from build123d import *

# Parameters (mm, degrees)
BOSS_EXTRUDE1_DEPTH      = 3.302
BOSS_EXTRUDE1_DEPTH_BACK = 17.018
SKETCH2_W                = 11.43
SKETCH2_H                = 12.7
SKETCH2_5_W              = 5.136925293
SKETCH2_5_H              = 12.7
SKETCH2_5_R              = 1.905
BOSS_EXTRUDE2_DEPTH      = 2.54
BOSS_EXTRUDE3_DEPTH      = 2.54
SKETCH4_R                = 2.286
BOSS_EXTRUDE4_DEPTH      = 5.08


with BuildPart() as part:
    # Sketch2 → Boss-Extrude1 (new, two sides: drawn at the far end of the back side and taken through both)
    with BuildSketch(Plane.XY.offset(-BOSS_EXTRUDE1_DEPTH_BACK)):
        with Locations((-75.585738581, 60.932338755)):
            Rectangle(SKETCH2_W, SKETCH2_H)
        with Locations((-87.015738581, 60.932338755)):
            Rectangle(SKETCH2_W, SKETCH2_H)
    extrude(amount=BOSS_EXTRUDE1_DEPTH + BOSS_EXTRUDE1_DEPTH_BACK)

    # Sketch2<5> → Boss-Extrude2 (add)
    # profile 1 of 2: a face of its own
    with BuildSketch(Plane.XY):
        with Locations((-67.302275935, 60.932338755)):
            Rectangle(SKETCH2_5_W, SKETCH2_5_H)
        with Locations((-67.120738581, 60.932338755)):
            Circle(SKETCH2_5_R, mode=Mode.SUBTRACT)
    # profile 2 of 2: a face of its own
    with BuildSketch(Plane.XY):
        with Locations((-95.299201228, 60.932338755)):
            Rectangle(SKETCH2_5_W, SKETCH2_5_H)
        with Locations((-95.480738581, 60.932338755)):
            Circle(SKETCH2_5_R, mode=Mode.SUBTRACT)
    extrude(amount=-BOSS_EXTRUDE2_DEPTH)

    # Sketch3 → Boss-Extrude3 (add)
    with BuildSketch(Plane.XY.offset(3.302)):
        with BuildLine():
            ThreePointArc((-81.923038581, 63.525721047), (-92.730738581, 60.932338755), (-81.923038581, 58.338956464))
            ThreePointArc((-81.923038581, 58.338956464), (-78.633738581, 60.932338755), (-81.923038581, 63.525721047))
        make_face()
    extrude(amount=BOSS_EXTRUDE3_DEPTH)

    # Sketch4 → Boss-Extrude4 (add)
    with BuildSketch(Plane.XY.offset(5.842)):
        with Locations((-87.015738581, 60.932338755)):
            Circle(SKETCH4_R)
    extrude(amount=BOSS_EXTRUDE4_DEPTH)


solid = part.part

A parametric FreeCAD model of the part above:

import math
import FreeCAD as App
import Part
import Sketcher

V = App.Vector
Q = App.Units.Quantity

doc = App.newDocument("Part")
body = doc.addObject("PartDesign::Body", "Body")

# Sketch on XY plane
sketch1 = body.newObject("Sketcher::SketchObject", "Sketch")
sketch1.AttachmentSupport = (doc.getObject("XY_Plane"), [""])
sketch1.MapMode = "FlatFace"
sketch1.addGeometry(Part.LineSegment(V(-69.870739, 54.582339, 0), V(-69.870739, 67.282339, 0)), False)
sketch1.addGeometry(Part.LineSegment(V(-69.870739, 67.282339, 0), V(-92.730739, 67.282339, 0)), False)
sketch1.addGeometry(Part.LineSegment(V(-92.730739, 67.282339, 0), V(-92.730739, 54.582339, 0)), False)
sketch1.addGeometry(Part.LineSegment(V(-92.730739, 54.582339, 0), V(-69.870739, 54.582339, 0)), False)
sketch1.addConstraint(Sketcher.Constraint("Coincident", 0, 2, 1, 1))
sketch1.addConstraint(Sketcher.Constraint("Coincident", 1, 2, 2, 1))
sketch1.addConstraint(Sketcher.Constraint("Coincident", 2, 2, 3, 1))
sketch1.addConstraint(Sketcher.Constraint("Coincident", 3, 2, 0, 1))
sketch1.addConstraint(Sketcher.Constraint("Vertical", 0))
sketch1.addConstraint(Sketcher.Constraint("Horizontal", 1))
sketch1.addConstraint(Sketcher.Constraint("Vertical", 2))
sketch1.addConstraint(Sketcher.Constraint("Horizontal", 3))
sketch1.addConstraint(Sketcher.Constraint("DistanceX", 1, 2, 1, 1, Q("0.9 in")))
sketch1.addConstraint(Sketcher.Constraint("DistanceY", 0, 1, 0, 2, Q("0.5 in")))
sketch1.addConstraint(Sketcher.Constraint("DistanceX", 0, 2, -1, 1, Q("69.870739 mm")))
sketch1.addConstraint(Sketcher.Constraint("DistanceY", -1, 1, 0, 2, Q("67.282339 mm")))
pad1 = body.newObject("PartDesign::Pad", "Pad")
pad1.Profile = sketch1
pad1.Type = "TwoLengths"
pad1.Length = Q("0.13 in")
pad1.Length2 = Q("0.67 in")

# Sketch on XY plane
sketch2 = body.newObject("Sketcher::SketchObject", "Sketch001")
sketch2.AttachmentSupport = (doc.getObject("XY_Plane"), [""])
sketch2.MapMode = "FlatFace"
sketch2.addGeometry(Part.LineSegment(V(-69.870739, 67.282339, 0), V(-69.870739, 54.582339, 0)), False)
sketch2.addGeometry(Part.LineSegment(V(-69.870739, 54.582339, 0), V(-64.733813, 54.582339, 0)), False)
sketch2.addGeometry(Part.LineSegment(V(-64.733813, 54.582339, 0), V(-64.733813, 67.282339, 0)), False)
sketch2.addGeometry(Part.LineSegment(V(-64.733813, 67.282339, 0), V(-69.870739, 67.282339, 0)), False)
sketch2.addGeometry(Part.Circle(V(-67.120739, 60.932339, 0), V(0, 0, 1), 1.905), False)
sketch2.addGeometry(Part.LineSegment(V(-97.867664, 67.282339, 0), V(-97.867664, 54.582339, 0)), False)
sketch2.addGeometry(Part.LineSegment(V(-97.867664, 54.582339, 0), V(-92.730739, 54.582339, 0)), False)
sketch2.addGeometry(Part.LineSegment(V(-92.730739, 54.582339, 0), V(-92.730739, 67.282339, 0)), False)
sketch2.addGeometry(Part.LineSegment(V(-92.730739, 67.282339, 0), V(-97.867664, 67.282339, 0)), False)
sketch2.addGeometry(Part.Circle(V(-95.480739, 60.932339, 0), V(0, 0, 1), 1.905), False)
sketch2.addConstraint(Sketcher.Constraint("Coincident", 0, 2, 1, 1))
sketch2.addConstraint(Sketcher.Constraint("Coincident", 1, 2, 2, 1))
sketch2.addConstraint(Sketcher.Constraint("Coincident", 2, 2, 3, 1))
sketch2.addConstraint(Sketcher.Constraint("Coincident", 3, 2, 0, 1))
sketch2.addConstraint(Sketcher.Constraint("Coincident", 5, 2, 6, 1))
sketch2.addConstraint(Sketcher.Constraint("Coincident", 6, 2, 7, 1))
sketch2.addConstraint(Sketcher.Constraint("Coincident", 7, 2, 8, 1))
sketch2.addConstraint(Sketcher.Constraint("Coincident", 8, 2, 5, 1))
sketch2.addConstraint(Sketcher.Constraint("Vertical", 0))
sketch2.addConstraint(Sketcher.Constraint("Horizontal", 1))
sketch2.addConstraint(Sketcher.Constraint("Vertical", 2))
sketch2.addConstraint(Sketcher.Constraint("Horizontal", 3))
sketch2.addConstraint(Sketcher.Constraint("Vertical", 5))
sketch2.addConstraint(Sketcher.Constraint("Horizontal", 6))
sketch2.addConstraint(Sketcher.Constraint("Vertical", 7))
sketch2.addConstraint(Sketcher.Constraint("Horizontal", 8))
sketch2.addConstraint(Sketcher.Constraint("Equal", 4, 9))
sketch2.addConstraint(Sketcher.Constraint("Horizontal", 4, 3, 9, 3))
sketch2.addConstraint(Sketcher.Constraint("Horizontal", 1, 2, 5, 2))
sketch2.addConstraint(Sketcher.Constraint("Horizontal", 3, 2, 7, 2))
sketch2.addConstraint(Sketcher.Constraint("Equal", 3, 6))
sketch2.addConstraint(Sketcher.Constraint("Diameter", 4, Q("0.15 in")))
sketch2.addConstraint(Sketcher.Constraint("DistanceY", 0, 2, 0, 1, Q("0.5 in")))
sketch2.addConstraint(Sketcher.Constraint("DistanceX", 6, 2, 0, 2, Q("0.9 in")))
sketch2.addConstraint(Sketcher.Constraint("DistanceY", 0, 2, 4, 3, Q("0.25 in")))
sketch2.addConstraint(Sketcher.Constraint("DistanceX", 9, 3, 4, 3, Q("28.36 mm")))
sketch2.addConstraint(Sketcher.Constraint("DistanceX", 0, 2, 4, 3, Q("2.75 mm")))
sketch2.addConstraint(Sketcher.Constraint("DistanceX", 1, 1, 1, 2, Q("5.136925 mm")))
sketch2.addConstraint(Sketcher.Constraint("DistanceX", 4, 3, -1, 1, Q("67.120739 mm")))
sketch2.addConstraint(Sketcher.Constraint("DistanceY", -1, 1, 4, 3, Q("60.932339 mm")))
pad2 = body.newObject("PartDesign::Pad", "Pad001")
pad2.Profile = sketch2
pad2.Length = Q("0.1 in")
pad2.Reversed = True

# Sketch on XY plane
sketch3 = body.newObject("Sketcher::SketchObject", "Sketch002")
sketch3.AttachmentSupport = (doc.getObject("XY_Plane"), [""])
sketch3.MapMode = "FlatFace"
sketch3.AttachmentOffset = App.Placement(V(0, 0, 0.13 * 25.4), App.Rotation())
sketch3.addGeometry(Part.ArcOfCircle(Part.Circle(V(-87.015739, 60.932339, 0), V(0, 0, 1), 5.715), math.radians(26.986798), math.radians(333.013202)), False)
sketch3.addGeometry(Part.ArcOfCircle(Part.Circle(V(-81.300739, 60.932339, 0), V(0, 0, 1), 2.667), math.radians(-103.493399), math.radians(103.493399)), False)
sketch3.addConstraint(Sketcher.Constraint("Coincident", 0, 1, 1, 2))
sketch3.addConstraint(Sketcher.Constraint("Coincident", 1, 1, 0, 2))
sketch3.addConstraint(Sketcher.Constraint("Horizontal", 0, 3, 1, 3))
sketch3.addConstraint(Sketcher.Constraint("Radius", 0, Q("0.225 in")))
sketch3.addConstraint(Sketcher.Constraint("Radius", 1, Q("0.105 in")))
sketch3.addConstraint(Sketcher.Constraint("DistanceX", 0, 3, 1, 3, Q("0.225 in")))
sketch3.addConstraint(Sketcher.Constraint("DistanceX", 0, 3, -1, 1, Q("87.015739 mm")))
sketch3.addConstraint(Sketcher.Constraint("DistanceY", -1, 1, 0, 3, Q("60.932339 mm")))
pad3 = body.newObject("PartDesign::Pad", "Pad002")
pad3.Profile = sketch3
pad3.Length = Q("0.1 in")

# Sketch on XY plane
sketch4 = body.newObject("Sketcher::SketchObject", "Sketch003")
sketch4.AttachmentSupport = (doc.getObject("XY_Plane"), [""])
sketch4.MapMode = "FlatFace"
sketch4.AttachmentOffset = App.Placement(V(0, 0, 0.23 * 25.4), App.Rotation())
sketch4.addGeometry(Part.Circle(V(-87.015739, 60.932339, 0), V(0, 0, 1), 2.286), False)
sketch4.addConstraint(Sketcher.Constraint("Diameter", 0, Q("0.18 in")))
sketch4.addConstraint(Sketcher.Constraint("DistanceX", 0, 3, -1, 1, Q("87.015739 mm")))
sketch4.addConstraint(Sketcher.Constraint("DistanceY", -1, 1, 0, 3, Q("60.932339 mm")))
pad4 = body.newObject("PartDesign::Pad", "Pad003")
pad4.Profile = sketch4
pad4.Length = Q("0.2 in")

doc.recompute()
